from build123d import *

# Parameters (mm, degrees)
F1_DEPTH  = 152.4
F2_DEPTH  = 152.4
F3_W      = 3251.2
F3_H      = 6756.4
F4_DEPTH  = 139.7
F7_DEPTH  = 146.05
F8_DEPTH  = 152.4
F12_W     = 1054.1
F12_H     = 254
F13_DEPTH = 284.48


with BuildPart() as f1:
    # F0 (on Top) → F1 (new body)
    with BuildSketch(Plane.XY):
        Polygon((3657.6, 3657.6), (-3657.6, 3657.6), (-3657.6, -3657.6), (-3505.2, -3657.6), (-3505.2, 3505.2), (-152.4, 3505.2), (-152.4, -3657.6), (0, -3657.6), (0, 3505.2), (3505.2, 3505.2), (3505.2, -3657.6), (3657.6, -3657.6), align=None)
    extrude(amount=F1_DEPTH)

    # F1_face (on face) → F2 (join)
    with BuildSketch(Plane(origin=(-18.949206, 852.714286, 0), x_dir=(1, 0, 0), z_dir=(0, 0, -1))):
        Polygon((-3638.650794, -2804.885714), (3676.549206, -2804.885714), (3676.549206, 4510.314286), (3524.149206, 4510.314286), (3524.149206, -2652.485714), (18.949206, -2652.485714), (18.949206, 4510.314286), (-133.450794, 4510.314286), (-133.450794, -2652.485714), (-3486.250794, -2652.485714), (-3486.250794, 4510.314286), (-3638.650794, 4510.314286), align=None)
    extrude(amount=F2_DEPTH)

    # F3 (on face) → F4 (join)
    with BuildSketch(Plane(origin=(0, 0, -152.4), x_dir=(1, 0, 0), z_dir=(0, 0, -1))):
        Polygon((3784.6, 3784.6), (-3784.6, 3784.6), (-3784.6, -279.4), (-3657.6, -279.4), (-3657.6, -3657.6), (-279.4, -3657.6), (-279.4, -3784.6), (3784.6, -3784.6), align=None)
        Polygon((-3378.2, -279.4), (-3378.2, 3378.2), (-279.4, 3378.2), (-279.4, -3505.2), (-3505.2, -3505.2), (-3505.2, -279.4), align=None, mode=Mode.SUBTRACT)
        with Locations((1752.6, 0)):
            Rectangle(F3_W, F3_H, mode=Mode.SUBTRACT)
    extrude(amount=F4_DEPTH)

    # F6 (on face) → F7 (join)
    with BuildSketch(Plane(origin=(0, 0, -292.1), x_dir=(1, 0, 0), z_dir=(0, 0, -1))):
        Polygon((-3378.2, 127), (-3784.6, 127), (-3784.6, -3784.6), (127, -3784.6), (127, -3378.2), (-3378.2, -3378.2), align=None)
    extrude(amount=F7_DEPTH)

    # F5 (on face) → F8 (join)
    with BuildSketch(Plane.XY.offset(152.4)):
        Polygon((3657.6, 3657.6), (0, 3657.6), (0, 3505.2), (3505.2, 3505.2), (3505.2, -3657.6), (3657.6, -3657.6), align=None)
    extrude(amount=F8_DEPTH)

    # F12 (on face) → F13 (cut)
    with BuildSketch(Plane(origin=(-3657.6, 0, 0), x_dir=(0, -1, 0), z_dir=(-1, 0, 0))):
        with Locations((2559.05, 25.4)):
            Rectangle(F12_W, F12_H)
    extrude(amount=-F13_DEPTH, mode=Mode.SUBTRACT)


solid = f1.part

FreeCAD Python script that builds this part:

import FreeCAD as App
import Part
import Sketcher
Q = App.Units.Quantity

doc = App.newDocument("Part")
body = doc.addObject("PartDesign::Body", "Body")

# Sketch on XY plane
sketch1 = body.newObject("Sketcher::SketchObject", "Sketch")
sketch1.AttachmentSupport = (doc.getObject("XY_Plane"), [""])
sketch1.MapMode = "FlatFace"
sketch1.addGeometry([
    Part.LineSegment(App.Vector(3657.6, 3657.6, 0), App.Vector(-3657.6, 3657.6, 0)),  # 0
    Part.LineSegment(App.Vector(-3657.6, 3657.6, 0), App.Vector(-3657.6, -3657.6, 0)),  # 1
    Part.LineSegment(App.Vector(-3657.6, -3657.6, 0), App.Vector(-3505.2, -3657.6, 0)),  # 2
    Part.LineSegment(App.Vector(-3505.2, -3657.6, 0), App.Vector(-3505.2, 3505.2, 0)),  # 3
    Part.LineSegment(App.Vector(-3505.2, 3505.2, 0), App.Vector(-152.4, 3505.2, 0)),  # 4
    Part.LineSegment(App.Vector(-152.4, 3505.2, 0), App.Vector(-152.4, -3657.6, 0)),  # 5
    Part.LineSegment(App.Vector(-152.4, -3657.6, 0), App.Vector(0, -3657.6, 0)),  # 6
    Part.LineSegment(App.Vector(0, -3657.6, 0), App.Vector(0, 3505.2, 0)),  # 7
    Part.LineSegment(App.Vector(0, 3505.2, 0), App.Vector(3505.2, 3505.2, 0)),  # 8
    Part.LineSegment(App.Vector(3505.2, 3505.2, 0), App.Vector(3505.2, -3657.6, 0)),  # 9
    Part.LineSegment(App.Vector(3505.2, -3657.6, 0), App.Vector(3657.6, -3657.6, 0)),  # 10
    Part.LineSegment(App.Vector(3657.6, -3657.6, 0), App.Vector(3657.6, 3657.6, 0)),  # 11
], False)
sketch1.addConstraint([
    Sketcher.Constraint("Coincident", 0, 2, 1, 1),
    Sketcher.Constraint("Coincident", 1, 2, 2, 1),
    Sketcher.Constraint("Coincident", 2, 2, 3, 1),
    Sketcher.Constraint("Coincident", 3, 2, 4, 1),
    Sketcher.Constraint("Coincident", 4, 2, 5, 1),
    Sketcher.Constraint("Coincident", 5, 2, 6, 1),
    Sketcher.Constraint("Coincident", 6, 2, 7, 1),
    Sketcher.Constraint("Coincident", 7, 2, 8, 1),
    Sketcher.Constraint("Coincident", 8, 2, 9, 1),
    Sketcher.Constraint("Coincident", 9, 2, 10, 1),
    Sketcher.Constraint("Coincident", 10, 2, 11, 1),
    Sketcher.Constraint("Coincident", 11, 2, 0, 1),
    Sketcher.Constraint("Horizontal", 0),
    Sketcher.Constraint("Vertical", 1),
    Sketcher.Constraint("Horizontal", 2),
    Sketcher.Constraint("Vertical", 3),
    Sketcher.Constraint("Horizontal", 4),
    Sketcher.Constraint("Vertical", 5),
    Sketcher.Constraint("Horizontal", 6),
    Sketcher.Constraint("Vertical", 7),
    Sketcher.Constraint("Horizontal", 8),
    Sketcher.Constraint("Vertical", 9),
    Sketcher.Constraint("Horizontal", 10),
    Sketcher.Constraint("Vertical", 11),
    Sketcher.Constraint("Symmetric", 0, 2, 10, 2, -1, 1),
    Sketcher.Constraint("Symmetric", 3, 2, 8, 2, -2),
    Sketcher.Constraint("PointOnObject", 6, 2, -2),
    Sketcher.Constraint("Horizontal", 2, 2, 5, 2),
    Sketcher.Constraint("Horizontal", 6, 2, 9, 2),
    Sketcher.Constraint("Equal", 2, 6),
    Sketcher.Constraint("Equal", 0, 1),
    Sketcher.Constraint("DistanceX", 0, 2, 0, 1, Q("288 in")),
    Sketcher.Constraint("DistanceX", 2, 1, 2, 2, Q("6 in")),
    Sketcher.Constraint("DistanceY", 3, 1, 3, 2, Q("282 in")),
])
pad1 = body.newObject("PartDesign::Pad", "Pad")
pad1.Profile = sketch1
pad1.Length = Q("6 in")

# Sketch on XY plane
sketch2 = body.newObject("Sketcher::SketchObject", "Sketch001")
sketch2.AttachmentSupport = (doc.getObject("XY_Plane"), [""])
sketch2.MapMode = "FlatFace"
sketch2.addGeometry([
    Part.LineSegment(App.Vector(-3657.6, 3657.6, 0), App.Vector(3657.6, 3657.6, 0)),  # 0
    Part.LineSegment(App.Vector(3657.6, 3657.6, 0), App.Vector(3657.6, -3657.6, 0)),  # 1
    Part.LineSegment(App.Vector(3657.6, -3657.6, 0), App.Vector(3505.2, -3657.6, 0)),  # 2
    Part.LineSegment(App.Vector(3505.2, -3657.6, 0), App.Vector(3505.2, 3505.2, 0)),  # 3
    Part.LineSegment(App.Vector(3505.2, 3505.2, 0), App.Vector(0, 3505.2, 0)),  # 4
    Part.LineSegment(App.Vector(0, 3505.2, 0), App.Vector(0, -3657.6, 0)),  # 5
    Part.LineSegment(App.Vector(0, -3657.6, 0), App.Vector(-152.4, -3657.6, 0)),  # 6
    Part.LineSegment(App.Vector(-152.4, -3657.6, 0), App.Vector(-152.4, 3505.2, 0)),  # 7
    Part.LineSegment(App.Vector(-152.4, 3505.2, 0), App.Vector(-3505.2, 3505.2, 0)),  # 8
    Part.LineSegment(App.Vector(-3505.2, 3505.2, 0), App.Vector(-3505.2, -3657.6, 0)),  # 9
    Part.LineSegment(App.Vector(-3505.2, -3657.6, 0), App.Vector(-3657.6, -3657.6, 0)),  # 10
    Part.LineSegment(App.Vector(-3657.6, -3657.6, 0), App.Vector(-3657.6, 3657.6, 0)),  # 11
], False)
sketch2.addConstraint([
    Sketcher.Constraint("Coincident", 0, 2, 1, 1),
    Sketcher.Constraint("Coincident", 1, 2, 2, 1),
    Sketcher.Constraint("Coincident", 2, 2, 3, 1),
    Sketcher.Constraint("Coincident", 3, 2, 4, 1),
    Sketcher.Constraint("Coincident", 4, 2, 5, 1),
    Sketcher.Constraint("Coincident", 5, 2, 6, 1),
    Sketcher.Constraint("Coincident", 6, 2, 7, 1),
    Sketcher.Constraint("Coincident", 7, 2, 8, 1),
    Sketcher.Constraint("Coincident", 8, 2, 9, 1),
    Sketcher.Constraint("Coincident", 9, 2, 10, 1),
    Sketcher.Constraint("Coincident", 10, 2, 11, 1),
    Sketcher.Constraint("Coincident", 11, 2, 0, 1),
    Sketcher.Constraint("Horizontal", 0),
    Sketcher.Constraint("Vertical", 1),
    Sketcher.Constraint("Horizontal", 2),
    Sketcher.Constraint("Vertical", 3),
    Sketcher.Constraint("Horizontal", 4),
    Sketcher.Constraint("Vertical", 5),
    Sketcher.Constraint("Horizontal", 6),
    Sketcher.Constraint("Vertical", 7),
    Sketcher.Constraint("Horizontal", 8),
    Sketcher.Constraint("Vertical", 9),
    Sketcher.Constraint("Horizontal", 10),
    Sketcher.Constraint("Vertical", 11),
    Sketcher.Constraint("Symmetric", 0, 2, 10, 2, -1, 1),
    Sketcher.Constraint("Symmetric", 3, 2, 8, 2, -2),
    Sketcher.Constraint("PointOnObject", 4, 2, -2),
    Sketcher.Constraint("Horizontal", 2, 2, 5, 2),
    Sketcher.Constraint("Horizontal", 6, 2, 9, 2),
    Sketcher.Constraint("Equal", 2, 6),
    Sketcher.Constraint("Equal", 0, 1),
    Sketcher.Constraint("DistanceX", 0, 1, 0, 2, Q("288 in")),
    Sketcher.Constraint("DistanceX", 2, 2, 2, 1, Q("6 in")),
    Sketcher.Constraint("DistanceY", 3, 1, 3, 2, Q("282 in")),
])
pad2 = body.newObject("PartDesign::Pad", "Pad001")
pad2.Profile = sketch2
pad2.Length = Q("6 in")
pad2.Reversed = True

# Sketch on XY plane
sketch3 = body.newObject("Sketcher::SketchObject", "Sketch002")
sketch3.AttachmentSupport = (doc.getObject("XY_Plane"), [""])
sketch3.MapMode = "FlatFace"
sketch3.AttachmentOffset = App.Placement(App.Vector(0, 0, -6 * 25.4), App.Rotation())
sketch3.addGeometry([
    Part.LineSegment(App.Vector(3784.6, -3784.6, 0), App.Vector(-3784.6, -3784.6, 0)),  # 0
    Part.LineSegment(App.Vector(-3784.6, -3784.6, 0), App.Vector(-3784.6, 279.4, 0)),  # 1
    Part.LineSegment(App.Vector(-3784.6, 279.4, 0), App.Vector(-3657.6, 279.4, 0)),  # 2
    Part.LineSegment(App.Vector(-3657.6, 279.4, 0), App.Vector(-3657.6, 3657.6, 0)),  # 3
    Part.LineSegment(App.Vector(-3657.6, 3657.6, 0), App.Vector(-279.4, 3657.6, 0)),  # 4
    Part.LineSegment(App.Vector(-279.4, 3657.6, 0), App.Vector(-279.4, 3784.6, 0)),  # 5
    Part.LineSegment(App.Vector(-279.4, 3784.6, 0), App.Vector(3784.6, 3784.6, 0)),  # 6
    Part.LineSegment(App.Vector(3784.6, 3784.6, 0), App.Vector(3784.6, -3784.6, 0)),  # 7
    Part.LineSegment(App.Vector(-3505.2, 279.4, 0), App.Vector(-3378.2, 279.4, 0)),  # 8
    Part.LineSegment(App.Vector(-3378.2, 279.4, 0), App.Vector(-3378.2, -3378.2, 0)),  # 9
    Part.LineSegment(App.Vector(-3378.2, -3378.2, 0), App.Vector(-279.4, -3378.2, 0)),  # 10
    Part.LineSegment(App.Vector(-279.4, -3378.2, 0), App.Vector(-279.4, 3505.2, 0)),  # 11
    Part.LineSegment(App.Vector(-279.4, 3505.2, 0), App.Vector(-3505.2, 3505.2, 0)),  # 12
    Part.LineSegment(App.Vector(-3505.2, 3505.2, 0), App.Vector(-3505.2, 279.4, 0)),  # 13
    Part.LineSegment(App.Vector(3378.2, 3378.2, 0), App.Vector(127, 3378.2, 0)),  # 14
    Part.LineSegment(App.Vector(127, 3378.2, 0), App.Vector(127, -3378.2, 0)),  # 15
    Part.LineSegment(App.Vector(127, -3378.2, 0), App.Vector(3378.2, -3378.2, 0)),  # 16
    Part.LineSegment(App.Vector(3378.2, -3378.2, 0), App.Vector(3378.2, 3378.2, 0)),  # 17
], False)
sketch3.addConstraint([
    Sketcher.Constraint("Coincident", 0, 2, 1, 1),
    Sketcher.Constraint("Coincident", 1, 2, 2, 1),
    Sketcher.Constraint("Coincident", 2, 2, 3, 1),
    Sketcher.Constraint("Coincident", 3, 2, 4, 1),
    Sketcher.Constraint("Coincident", 4, 2, 5, 1),
    Sketcher.Constraint("Coincident", 5, 2, 6, 1),
    Sketcher.Constraint("Coincident", 6, 2, 7, 1),
    Sketcher.Constraint("Coincident", 7, 2, 0, 1),
    Sketcher.Constraint("Coincident", 8, 2, 9, 1),
    Sketcher.Constraint("Coincident", 9, 2, 10, 1),
    Sketcher.Constraint("Coincident", 10, 2, 11, 1),
    Sketcher.Constraint("Coincident", 11, 2, 12, 1),
    Sketcher.Constraint("Coincident", 12, 2, 13, 1),
    Sketcher.Constraint("Coincident", 13, 2, 8, 1),
    Sketcher.Constraint("Coincident", 14, 2, 15, 1),
    Sketcher.Constraint("Coincident", 15, 2, 16, 1),
    Sketcher.Constraint("Coincident", 16, 2, 17, 1),
    Sketcher.Constraint("Coincident", 17, 2, 14, 1),
    Sketcher.Constraint("Horizontal", 0),
    Sketcher.Constraint("Vertical", 1),
    Sketcher.Constraint("Horizontal", 2),
    Sketcher.Constraint("Vertical", 3),
    Sketcher.Constraint("Horizontal", 4),
    Sketcher.Constraint("Vertical", 5),
    Sketcher.Constraint("Horizontal", 6),
    Sketcher.Constraint("Vertical", 7),
    Sketcher.Constraint("Horizontal", 8),
    Sketcher.Constraint("Vertical", 9),
    Sketcher.Constraint("Horizontal", 10),
    Sketcher.Constraint("Vertical", 11),
    Sketcher.Constraint("Horizontal", 12),
    Sketcher.Constraint("Vertical", 13),
    Sketcher.Constraint("Horizontal", 14),
    Sketcher.Constraint("Vertical", 15),
    Sketcher.Constraint("Horizontal", 16),
    Sketcher.Constraint("Vertical", 17),
    Sketcher.Constraint("Symmetric", 0, 2, 6, 2, -1, 1),
    Sketcher.Constraint("Symmetric", 9, 2, 17, 2, -1, 1),
    Sketcher.Constraint("Horizontal", 2, 2, 8, 2),
    Sketcher.Constraint("Horizontal", 10, 2, 15, 2),
    Sketcher.Constraint("Vertical", 5, 2, 10, 2),
    Sketcher.Constraint("Equal", 2, 8),
    Sketcher.Constraint("Equal", 6, 1),
    Sketcher.Constraint("Equal", 4, 3),
    Sketcher.Constraint("Equal", 8, 5),
    Sketcher.Constraint("Equal", 12, 13),
    Sketcher.Constraint("DistanceX", 0, 2, 0, 1, Q("298 in")),
    Sketcher.Constraint("DistanceX", 2, 1, 2, 2, Q("5 in")),
    Sketcher.Constraint("DistanceX", 4, 1, 4, 2, Q("133 in")),
    Sketcher.Constraint("DistanceX", 10, 1, 10, 2, Q("122 in")),
    Sketcher.Constraint("DistanceX", 14, 2, 14, 1, Q("128 in")),
    Sketcher.Constraint("DistanceY", 9, 2, 9, 1, Q("144 in")),
])
pad3 = body.newObject("PartDesign::Pad", "Pad002")
pad3.Profile = sketch3
pad3.Length = Q("5.5 in")
pad3.Reversed = True

# Sketch on XY plane
sketch4 = body.newObject("Sketcher::SketchObject", "Sketch003")
sketch4.AttachmentSupport = (doc.getObject("XY_Plane"), [""])
sketch4.MapMode = "FlatFace"
sketch4.AttachmentOffset = App.Placement(App.Vector(0, 0, -11.5 * 25.4), App.Rotation())
sketch4.addGeometry([
    Part.LineSegment(App.Vector(-3378.2, -127, 0), App.Vector(-3784.6, -127, 0)),  # 0
    Part.LineSegment(App.Vector(-3784.6, -127, 0), App.Vector(-3784.6, 3784.6, 0)),  # 1
    Part.LineSegment(App.Vector(-3784.6, 3784.6, 0), App.Vector(127, 3784.6, 0)),  # 2
    Part.LineSegment(App.Vector(127, 3784.6, 0), App.Vector(127, 3378.2, 0)),  # 3
    Part.LineSegment(App.Vector(127, 3378.2, 0), App.Vector(-3378.2, 3378.2, 0)),  # 4
    Part.LineSegment(App.Vector(-3378.2, 3378.2, 0), App.Vector(-3378.2, -127, 0)),  # 5
], False)
sketch4.addConstraint([
    Sketcher.Constraint("Coincident", 0, 2, 1, 1),
    Sketcher.Constraint("Coincident", 1, 2, 2, 1),
    Sketcher.Constraint("Coincident", 2, 2, 3, 1),
    Sketcher.Constraint("Coincident", 3, 2, 4, 1),
    Sketcher.Constraint("Coincident", 4, 2, 5, 1),
    Sketcher.Constraint("Coincident", 5, 2, 0, 1),
    Sketcher.Constraint("Horizontal", 0),
    Sketcher.Constraint("Vertical", 1),
    Sketcher.Constraint("Horizontal", 2),
    Sketcher.Constraint("Vertical", 3),
    Sketcher.Constraint("Horizontal", 4),
    Sketcher.Constraint("Vertical", 5),
    Sketcher.Constraint("Equal", 2, 1),
    Sketcher.Constraint("Equal", 0, 3),
    Sketcher.Constraint("DistanceX", 0, 2, 0, 1, Q("16 in")),
    Sketcher.Constraint("DistanceX", 2, 1, 2, 2, Q("154 in")),
    Sketcher.Constraint("DistanceX", 0, 2, -1, 1, Q("149 in")),
    Sketcher.Constraint("DistanceY", 0, 2, -1, 1, Q("5 in")),
])
pad4 = body.newObject("PartDesign::Pad", "Pad003")
pad4.Profile = sketch4
pad4.Length = Q("5.75 in")
pad4.Reversed = True

# Sketch on XY plane
sketch5 = body.newObject("Sketcher::SketchObject", "Sketch004")
sketch5.AttachmentSupport = (doc.getObject("XY_Plane"), [""])
sketch5.MapMode = "FlatFace"
sketch5.AttachmentOffset = App.Placement(App.Vector(0, 0, 6 * 25.4), App.Rotation())
sketch5.addGeometry([
    Part.LineSegment(App.Vector(3657.6, 3657.6, 0), App.Vector(0, 3657.6, 0)),  # 0
    Part.LineSegment(App.Vector(0, 3657.6, 0), App.Vector(0, 3505.2, 0)),  # 1
    Part.LineSegment(App.Vector(0, 3505.2, 0), App.Vector(3505.2, 3505.2, 0)),  # 2
    Part.LineSegment(App.Vector(3505.2, 3505.2, 0), App.Vector(3505.2, -3657.6, 0)),  # 3
    Part.LineSegment(App.Vector(3505.2, -3657.6, 0), App.Vector(3657.6, -3657.6, 0)),  # 4
    Part.LineSegment(App.Vector(3657.6, -3657.6, 0), App.Vector(3657.6, 3657.6, 0)),  # 5
], False)
sketch5.addConstraint([
    Sketcher.Constraint("Coincident", 0, 2, 1, 1),
    Sketcher.Constraint("Coincident", 1, 2, 2, 1),
    Sketcher.Constraint("Coincident", 2, 2, 3, 1),
    Sketcher.Constraint("Coincident", 3, 2, 4, 1),
    Sketcher.Constraint("Coincident", 4, 2, 5, 1),
    Sketcher.Constraint("Coincident", 5, 2, 0, 1),
    Sketcher.Constraint("Horizontal", 0),
    Sketcher.Constraint("Vertical", 1),
    Sketcher.Constraint("Horizontal", 2),
    Sketcher.Constraint("Vertical", 3),
    Sketcher.Constraint("Horizontal", 4),
    Sketcher.Constraint("Vertical", 5),
    Sketcher.Constraint("PointOnObject", 0, 2, -2),
    Sketcher.Constraint("Equal", 4, 1),
    Sketcher.Constraint("DistanceX", 0, 2, 0, 1, Q("144 in")),
    Sketcher.Constraint("DistanceX", 2, 1, 2, 2, Q("138 in")),
    Sketcher.Constraint("DistanceY", 3, 2, 3, 1, Q("282 in")),
    Sketcher.Constraint("DistanceY", -1, 1, 0, 2, Q("144 in")),
])
pad5 = body.newObject("PartDesign::Pad", "Pad004")
pad5.Profile = sketch5
pad5.Length = Q("6 in")

# Sketch on YZ plane
sketch6 = body.newObject("Sketcher::SketchObject", "Sketch005")
sketch6.AttachmentSupport = (doc.getObject("YZ_Plane"), [""])
sketch6.MapMode = "FlatFace"
sketch6.AttachmentOffset = App.Placement(App.Vector(0, 0, -144 * 25.4), App.Rotation())
sketch6.addGeometry([
    Part.LineSegment(App.Vector(-2032, 152.4, 0), App.Vector(-2032, -101.6, 0)),
    Part.LineSegment(App.Vector(-2032, -101.6, 0), App.Vector(-3086.1, -101.6, 0)),
    Part.LineSegment(App.Vector(-3086.1, -101.6, 0), App.Vector(-3086.1, 152.4, 0)),
    Part.LineSegment(App.Vector(-3086.1, 152.4, 0), App.Vector(-2032, 152.4, 0)),
], False)
sketch6.addConstraint([
    Sketcher.Constraint("Coincident", 0, 2, 1, 1),
    Sketcher.Constraint("Coincident", 1, 2, 2, 1),
    Sketcher.Constraint("Coincident", 2, 2, 3, 1),
    Sketcher.Constraint("Coincident", 3, 2, 0, 1),
    Sketcher.Constraint("Vertical", 0),
    Sketcher.Constraint("Horizontal", 1),
    Sketcher.Constraint("Vertical", 2),
    Sketcher.Constraint("Horizontal", 3),
    Sketcher.Constraint("DistanceY", 0, 2, 0, 1, Q("10 in")),
    Sketcher.Constraint("DistanceX", 1, 2, 1, 1, Q("41.5 in")),
    Sketcher.Constraint("DistanceX", 0, 2, -1, 1, Q("80 in")),
    Sketcher.Constraint("DistanceY", 0, 2, -1, 1, Q("4 in")),
])
pocket1 = body.newObject("PartDesign::Pocket", "Pocket")
pocket1.Profile = sketch6
pocket1.Length = Q("11.2 in")
pocket1.Reversed = True

doc.recompute()
